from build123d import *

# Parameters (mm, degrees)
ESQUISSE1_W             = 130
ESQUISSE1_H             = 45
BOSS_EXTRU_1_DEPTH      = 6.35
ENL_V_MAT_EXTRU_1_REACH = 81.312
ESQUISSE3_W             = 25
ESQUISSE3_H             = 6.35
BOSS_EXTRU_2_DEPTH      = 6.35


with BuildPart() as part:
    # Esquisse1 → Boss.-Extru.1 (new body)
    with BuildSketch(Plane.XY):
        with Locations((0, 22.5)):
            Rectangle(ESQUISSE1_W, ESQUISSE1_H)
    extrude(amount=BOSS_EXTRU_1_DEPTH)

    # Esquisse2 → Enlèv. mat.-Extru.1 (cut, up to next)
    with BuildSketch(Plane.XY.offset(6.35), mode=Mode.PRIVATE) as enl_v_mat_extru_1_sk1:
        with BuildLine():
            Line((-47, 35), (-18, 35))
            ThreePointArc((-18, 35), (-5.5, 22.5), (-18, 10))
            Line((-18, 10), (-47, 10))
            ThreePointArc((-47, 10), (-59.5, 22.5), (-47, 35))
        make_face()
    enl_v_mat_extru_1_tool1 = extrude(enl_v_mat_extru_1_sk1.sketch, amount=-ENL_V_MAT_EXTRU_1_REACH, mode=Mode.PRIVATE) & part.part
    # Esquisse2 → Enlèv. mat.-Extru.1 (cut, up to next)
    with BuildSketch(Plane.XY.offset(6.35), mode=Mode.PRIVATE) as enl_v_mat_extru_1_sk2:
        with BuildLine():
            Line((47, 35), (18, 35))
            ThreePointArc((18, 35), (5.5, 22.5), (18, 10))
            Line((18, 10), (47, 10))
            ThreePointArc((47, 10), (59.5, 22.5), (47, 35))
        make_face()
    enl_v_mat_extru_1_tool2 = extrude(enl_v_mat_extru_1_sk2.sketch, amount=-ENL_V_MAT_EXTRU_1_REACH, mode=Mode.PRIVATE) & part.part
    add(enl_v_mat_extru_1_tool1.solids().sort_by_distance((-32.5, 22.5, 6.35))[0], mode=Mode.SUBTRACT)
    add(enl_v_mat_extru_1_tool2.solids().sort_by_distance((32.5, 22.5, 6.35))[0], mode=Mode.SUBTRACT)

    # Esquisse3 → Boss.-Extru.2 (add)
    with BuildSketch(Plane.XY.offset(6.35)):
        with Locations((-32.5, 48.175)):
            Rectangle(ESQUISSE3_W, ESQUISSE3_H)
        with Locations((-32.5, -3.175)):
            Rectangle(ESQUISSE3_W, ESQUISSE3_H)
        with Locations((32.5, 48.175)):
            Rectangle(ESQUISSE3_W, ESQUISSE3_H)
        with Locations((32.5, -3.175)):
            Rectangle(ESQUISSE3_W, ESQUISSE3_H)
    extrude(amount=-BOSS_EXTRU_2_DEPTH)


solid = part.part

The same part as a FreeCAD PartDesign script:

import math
import FreeCAD as App
import Part
import Sketcher

doc = App.newDocument("Part")
body = doc.addObject("PartDesign::Body", "Body")

# Sketch on XY plane
sketch1 = body.newObject("Sketcher::SketchObject", "Sketch")
sketch1.AttachmentSupport = (doc.getObject("XY_Plane"), [""])
sketch1.MapMode = "FlatFace"
sketch1.addGeometry(Part.LineSegment(App.Vector(-65, 45, 0), App.Vector(-65, 0, 0)), False)
sketch1.addGeometry(Part.LineSegment(App.Vector(-65, 0, 0), App.Vector(65, 0, 0)), False)
sketch1.addGeometry(Part.LineSegment(App.Vector(65, 0, 0), App.Vector(65, 45, 0)), False)
sketch1.addGeometry(Part.LineSegment(App.Vector(65, 45, 0), App.Vector(-65, 45, 0)), False)
sketch1.addConstraint(Sketcher.Constraint("Coincident", 0, 2, 1, 1))
sketch1.addConstraint(Sketcher.Constraint("Coincident", 1, 2, 2, 1))
sketch1.addConstraint(Sketcher.Constraint("Coincident", 2, 2, 3, 1))
sketch1.addConstraint(Sketcher.Constraint("Coincident", 3, 2, 0, 1))
sketch1.addConstraint(Sketcher.Constraint("Vertical", 0))
sketch1.addConstraint(Sketcher.Constraint("Horizontal", 1))
sketch1.addConstraint(Sketcher.Constraint("Vertical", 2))
sketch1.addConstraint(Sketcher.Constraint("Horizontal", 3))
sketch1.addConstraint(Sketcher.Constraint("Symmetric", 0, 2, 1, 2, -1, 1))
sketch1.addConstraint(Sketcher.Constraint("DistanceX", 1, 1, 1, 2, 130.0))
sketch1.addConstraint(Sketcher.Constraint("DistanceY", 0, 2, 0, 1, 45.0))
pad1 = body.newObject("PartDesign::Pad", "Pad")
pad1.Profile = sketch1
pad1.Length = 6.35

# Sketch on XY plane
sketch2 = body.newObject("Sketcher::SketchObject", "Sketch001")
sketch2.AttachmentSupport = (doc.getObject("XY_Plane"), [""])
sketch2.MapMode = "FlatFace"
sketch2.AttachmentOffset = App.Placement(App.Vector(0, 0, 6.35), App.Rotation())
sketch2.addGeometry(Part.LineSegment(App.Vector(-18, 35, 0), App.Vector(-47, 35, 0)), False)
sketch2.addGeometry(Part.ArcOfCircle(Part.Circle(App.Vector(-47, 22, 0), App.Vector(0, 0, 1), 12), math.radians(90), math.radians(270)), False)
sketch2.addGeometry(Part.LineSegment(App.Vector(-47, 10, 0), App.Vector(-18, 10, 0)), False)
sketch2.addGeometry(Part.ArcOfCircle(Part.Circle(App.Vector(-18, 22, 0), App.Vector(0, 0, 1), 12), math.radians(-90), math.radians(90)), False)
sketch2.addConstraint(Sketcher.Constraint("Tangent", 0, 2, 1, 1))
sketch2.addConstraint(Sketcher.Constraint("Tangent", 1, 2, 2, 1))
sketch2.addConstraint(Sketcher.Constraint("Tangent", 2, 2, 3, 1))
sketch2.addConstraint(Sketcher.Constraint("Tangent", 3, 2, 0, 1))
sketch2.addConstraint(Sketcher.Constraint("Horizontal", 0))
sketch2.addConstraint(Sketcher.Constraint("Horizontal", 2))
sketch2.addConstraint(Sketcher.Constraint("Radius", 1, 12.5))
sketch2.addConstraint(Sketcher.Constraint("DistanceX", 0, 2, 0, 1, 29.0))
sketch2.addConstraint(Sketcher.Constraint("DistanceX", 1, 3, -1, 1, 47.0))
sketch2.addConstraint(Sketcher.Constraint("DistanceY", -1, 1, 0, 2, 35.0))
pocket1 = body.newObject("PartDesign::Pocket", "Pocket")
pocket1.Profile = sketch2
pocket1.Type = "UpToFirst"

# Sketch on XY plane
sketch3 = body.newObject("Sketcher::SketchObject", "Sketch002")
sketch3.AttachmentSupport = (doc.getObject("XY_Plane"), [""])
sketch3.MapMode = "FlatFace"
sketch3.AttachmentOffset = App.Placement(App.Vector(0, 0, 6.35), App.Rotation())
sketch3.addGeometry(Part.LineSegment(App.Vector(47, 35, 0), App.Vector(18, 35, 0)), False)
sketch3.addGeometry(Part.ArcOfCircle(Part.Circle(App.Vector(18, 22, 0), App.Vector(0, 0, 1), 12), math.radians(90), math.radians(270)), False)
sketch3.addGeometry(Part.LineSegment(App.Vector(18, 10, 0), App.Vector(47, 10, 0)), False)
sketch3.addGeometry(Part.ArcOfCircle(Part.Circle(App.Vector(47, 22, 0), App.Vector(0, 0, 1), 12), math.radians(-90), math.radians(90)), False)
sketch3.addConstraint(Sketcher.Constraint("Tangent", 0, 2, 1, 1))
sketch3.addConstraint(Sketcher.Constraint("Tangent", 1, 2, 2, 1))
sketch3.addConstraint(Sketcher.Constraint("Tangent", 2, 2, 3, 1))
sketch3.addConstraint(Sketcher.Constraint("Tangent", 3, 2, 0, 1))
sketch3.addConstraint(Sketcher.Constraint("Horizontal", 0))
sketch3.addConstraint(Sketcher.Constraint("Horizontal", 2))
sketch3.addConstraint(Sketcher.Constraint("Radius", 1, 12.5))
sketch3.addConstraint(Sketcher.Constraint("DistanceX", 0, 2, 0, 1, 29.0))
sketch3.addConstraint(Sketcher.Constraint("DistanceX", -1, 1, 1, 3, 18.0))
sketch3.addConstraint(Sketcher.Constraint("DistanceY", -1, 1, 0, 2, 35.0))
pocket2 = body.newObject("PartDesign::Pocket", "Pocket001")
pocket2.Profile = sketch3
pocket2.Type = "UpToFirst"

# Sketch on XY plane
sketch4 = body.newObject("Sketcher::SketchObject", "Sketch003")
sketch4.AttachmentSupport = (doc.getObject("XY_Plane"), [""])
sketch4.MapMode = "FlatFace"
sketch4.AttachmentOffset = App.Placement(App.Vector(0, 0, 6.35), App.Rotation())
sketch4.addGeometry(Part.LineSegment(App.Vector(-45, 51, 0), App.Vector(-45, 45, 0)), False)
sketch4.addGeometry(Part.LineSegment(App.Vector(-45, 45, 0), App.Vector(-20, 45, 0)), False)
sketch4.addGeometry(Part.LineSegment(App.Vector(-20, 45, 0), App.Vector(-20, 51, 0)), False)
sketch4.addGeometry(Part.LineSegment(App.Vector(-20, 51, 0), App.Vector(-45, 51, 0)), False)
sketch4.addGeometry(Part.LineSegment(App.Vector(-45, 0, 0), App.Vector(-45, -6, 0)), False)
sketch4.addGeometry(Part.LineSegment(App.Vector(-45, -6, 0), App.Vector(-20, -6, 0)), False)
sketch4.addGeometry(Part.LineSegment(App.Vector(-20, -6, 0), App.Vector(-20, 0, 0)), False)
sketch4.addGeometry(Part.LineSegment(App.Vector(-20, 0, 0), App.Vector(-45, 0, 0)), False)
sketch4.addGeometry(Part.LineSegment(App.Vector(20, 51, 0), App.Vector(20, 45, 0)), False)
sketch4.addGeometry(Part.LineSegment(App.Vector(20, 45, 0), App.Vector(45, 45, 0)), False)
sketch4.addGeometry(Part.LineSegment(App.Vector(45, 45, 0), App.Vector(45, 51, 0)), False)
sketch4.addGeometry(Part.LineSegment(App.Vector(45, 51, 0), App.Vector(20, 51, 0)), False)
sketch4.addGeometry(Part.LineSegment(App.Vector(20, 0, 0), App.Vector(20, -6, 0)), False)
sketch4.addGeometry(Part.LineSegment(App.Vector(20, -6, 0), App.Vector(45, -6, 0)), False)
sketch4.addGeometry(Part.LineSegment(App.Vector(45, -6, 0), App.Vector(45, 0, 0)), False)
sketch4.addGeometry(Part.LineSegment(App.Vector(45, 0, 0), App.Vector(20, 0, 0)), False)
sketch4.addConstraint(Sketcher.Constraint("Coincident", 0, 2, 1, 1))
sketch4.addConstraint(Sketcher.Constraint("Coincident", 1, 2, 2, 1))
sketch4.addConstraint(Sketcher.Constraint("Coincident", 2, 2, 3, 1))
sketch4.addConstraint(Sketcher.Constraint("Coincident", 3, 2, 0, 1))
sketch4.addConstraint(Sketcher.Constraint("Coincident", 4, 2, 5, 1))
sketch4.addConstraint(Sketcher.Constraint("Coincident", 5, 2, 6, 1))
sketch4.addConstraint(Sketcher.Constraint("Coincident", 6, 2, 7, 1))
sketch4.addConstraint(Sketcher.Constraint("Coincident", 7, 2, 4, 1))
sketch4.addConstraint(Sketcher.Constraint("Coincident", 8, 2, 9, 1))
sketch4.addConstraint(Sketcher.Constraint("Coincident", 9, 2, 10, 1))
sketch4.addConstraint(Sketcher.Constraint("Coincident", 10, 2, 11, 1))
sketch4.addConstraint(Sketcher.Constraint("Coincident", 11, 2, 8, 1))
sketch4.addConstraint(Sketcher.Constraint("Coincident", 12, 2, 13, 1))
sketch4.addConstraint(Sketcher.Constraint("Coincident", 13, 2, 14, 1))
sketch4.addConstraint(Sketcher.Constraint("Coincident", 14, 2, 15, 1))
sketch4.addConstraint(Sketcher.Constraint("Coincident", 15, 2, 12, 1))
sketch4.addConstraint(Sketcher.Constraint("Vertical", 0))
sketch4.addConstraint(Sketcher.Constraint("Horizontal", 1))
sketch4.addConstraint(Sketcher.Constraint("Vertical", 2))
sketch4.addConstraint(Sketcher.Constraint("Horizontal", 3))
sketch4.addConstraint(Sketcher.Constraint("Vertical", 4))
sketch4.addConstraint(Sketcher.Constraint("Horizontal", 5))
sketch4.addConstraint(Sketcher.Constraint("Vertical", 6))
sketch4.addConstraint(Sketcher.Constraint("Horizontal", 7))
sketch4.addConstraint(Sketcher.Constraint("Vertical", 8))
sketch4.addConstraint(Sketcher.Constraint("Horizontal", 9))
sketch4.addConstraint(Sketcher.Constraint("Vertical", 10))
sketch4.addConstraint(Sketcher.Constraint("Horizontal", 11))
sketch4.addConstraint(Sketcher.Constraint("Vertical", 12))
sketch4.addConstraint(Sketcher.Constraint("Horizontal", 13))
sketch4.addConstraint(Sketcher.Constraint("Vertical", 14))
sketch4.addConstraint(Sketcher.Constraint("Horizontal", 15))
sketch4.addConstraint(Sketcher.Constraint("Symmetric", 7, 2, 14, 2, -1, 1))
sketch4.addConstraint(Sketcher.Constraint("Symmetric", 1, 2, 8, 2, -2))
sketch4.addConstraint(Sketcher.Constraint("Symmetric", 3, 2, 10, 2, -2))
sketch4.addConstraint(Sketcher.Constraint("Symmetric", 5, 2, 12, 2, -2))
sketch4.addConstraint(Sketcher.Constraint("PointOnObject", 6, 2, -1))
sketch4.addConstraint(Sketcher.Constraint("Vertical", 3, 2, 4, 2))
sketch4.addConstraint(Sketcher.Constraint("Vertical", 2, 2, 5, 2))
sketch4.addConstraint(Sketcher.Constraint("Equal", 2, 4))
sketch4.addConstraint(Sketcher.Constraint("DistanceX", 1, 1, 1, 2, 25.0))
sketch4.addConstraint(Sketcher.Constraint("DistanceX", 0, 2, -1, 1, 45.0))
sketch4.addConstraint(Sketcher.Constraint("DistanceY", -1, 1, 0, 2, 45.0))
sketch4.addConstraint(Sketcher.Constraint("DistanceY", 0, 2, 0, 1, 6.35))
pad2 = body.newObject("PartDesign::Pad", "Pad001")
pad2.Profile = sketch4
pad2.Length = 6.35
pad2.Reversed = True

doc.recompute()
